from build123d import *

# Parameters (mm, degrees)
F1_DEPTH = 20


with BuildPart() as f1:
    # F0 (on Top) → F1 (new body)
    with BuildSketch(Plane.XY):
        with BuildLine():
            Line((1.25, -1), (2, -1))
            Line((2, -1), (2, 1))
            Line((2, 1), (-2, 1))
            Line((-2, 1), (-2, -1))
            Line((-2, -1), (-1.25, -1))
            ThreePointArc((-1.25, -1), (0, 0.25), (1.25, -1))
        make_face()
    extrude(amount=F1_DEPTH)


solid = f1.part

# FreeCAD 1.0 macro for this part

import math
import FreeCAD as App
import Part
import Sketcher

V = App.Vector

doc = App.newDocument("Part")
body = doc.addObject("PartDesign::Body", "Body")

# Sketch on XY plane
sketch1 = body.newObject("Sketcher::SketchObject", "Sketch")
sketch1.AttachmentSupport = (doc.getObject("XY_Plane"), [""])
sketch1.MapMode = "FlatFace"
sketch1.addGeometry([
    Part.LineSegment(V(1.2, -1, 0), V(2, -1, 0)),  # 0
    Part.LineSegment(V(2, -1, 0), V(2, 1, 0)),  # 1
    Part.LineSegment(V(2, 1, 0), V(-2, 1, 0)),  # 2
    Part.LineSegment(V(-2, 1, 0), V(-2, -1, 0)),  # 3
    Part.LineSegment(V(-2, -1, 0), V(-1.2, -1, 0)),  # 4
    Part.ArcOfCircle(Part.Circle(V(0, -1, 0), V(0, 0, 1), 1.2), math.radians(0), math.radians(180)),  # 5
], False)
sketch1.addConstraint([
    Sketcher.Constraint("Coincident", 0, 2, 1, 1),
    Sketcher.Constraint("Coincident", 1, 2, 2, 1),
    Sketcher.Constraint("Coincident", 2, 2, 3, 1),
    Sketcher.Constraint("Coincident", 3, 2, 4, 1),
    Sketcher.Constraint("Coincident", 4, 2, 5, 2),
    Sketcher.Constraint("Coincident", 5, 1, 0, 1),
    Sketcher.Constraint("Horizontal", 0),
    Sketcher.Constraint("Vertical", 1),
    Sketcher.Constraint("Horizontal", 2),
    Sketcher.Constraint("Vertical", 3),
    Sketcher.Constraint("Horizontal", 4),
    Sketcher.Constraint("Symmetric", 0, 2, 2, 2, -1, 1),
    Sketcher.Constraint("Symmetric", 4, 2, 5, 1, -2),
    Sketcher.Constraint("Horizontal", 5, 3, 0, 2),
    Sketcher.Constraint("DistanceX", 2, 2, 2, 1, 4.0),
    Sketcher.Constraint("DistanceY", 1, 1, 1, 2, 2.0),
    Sketcher.Constraint("Radius", 5, 1.25),
])
pad1 = body.newObject("PartDesign::Pad", "Pad")
pad1.Profile = sketch1
pad1.Length = 20

doc.recompute()
